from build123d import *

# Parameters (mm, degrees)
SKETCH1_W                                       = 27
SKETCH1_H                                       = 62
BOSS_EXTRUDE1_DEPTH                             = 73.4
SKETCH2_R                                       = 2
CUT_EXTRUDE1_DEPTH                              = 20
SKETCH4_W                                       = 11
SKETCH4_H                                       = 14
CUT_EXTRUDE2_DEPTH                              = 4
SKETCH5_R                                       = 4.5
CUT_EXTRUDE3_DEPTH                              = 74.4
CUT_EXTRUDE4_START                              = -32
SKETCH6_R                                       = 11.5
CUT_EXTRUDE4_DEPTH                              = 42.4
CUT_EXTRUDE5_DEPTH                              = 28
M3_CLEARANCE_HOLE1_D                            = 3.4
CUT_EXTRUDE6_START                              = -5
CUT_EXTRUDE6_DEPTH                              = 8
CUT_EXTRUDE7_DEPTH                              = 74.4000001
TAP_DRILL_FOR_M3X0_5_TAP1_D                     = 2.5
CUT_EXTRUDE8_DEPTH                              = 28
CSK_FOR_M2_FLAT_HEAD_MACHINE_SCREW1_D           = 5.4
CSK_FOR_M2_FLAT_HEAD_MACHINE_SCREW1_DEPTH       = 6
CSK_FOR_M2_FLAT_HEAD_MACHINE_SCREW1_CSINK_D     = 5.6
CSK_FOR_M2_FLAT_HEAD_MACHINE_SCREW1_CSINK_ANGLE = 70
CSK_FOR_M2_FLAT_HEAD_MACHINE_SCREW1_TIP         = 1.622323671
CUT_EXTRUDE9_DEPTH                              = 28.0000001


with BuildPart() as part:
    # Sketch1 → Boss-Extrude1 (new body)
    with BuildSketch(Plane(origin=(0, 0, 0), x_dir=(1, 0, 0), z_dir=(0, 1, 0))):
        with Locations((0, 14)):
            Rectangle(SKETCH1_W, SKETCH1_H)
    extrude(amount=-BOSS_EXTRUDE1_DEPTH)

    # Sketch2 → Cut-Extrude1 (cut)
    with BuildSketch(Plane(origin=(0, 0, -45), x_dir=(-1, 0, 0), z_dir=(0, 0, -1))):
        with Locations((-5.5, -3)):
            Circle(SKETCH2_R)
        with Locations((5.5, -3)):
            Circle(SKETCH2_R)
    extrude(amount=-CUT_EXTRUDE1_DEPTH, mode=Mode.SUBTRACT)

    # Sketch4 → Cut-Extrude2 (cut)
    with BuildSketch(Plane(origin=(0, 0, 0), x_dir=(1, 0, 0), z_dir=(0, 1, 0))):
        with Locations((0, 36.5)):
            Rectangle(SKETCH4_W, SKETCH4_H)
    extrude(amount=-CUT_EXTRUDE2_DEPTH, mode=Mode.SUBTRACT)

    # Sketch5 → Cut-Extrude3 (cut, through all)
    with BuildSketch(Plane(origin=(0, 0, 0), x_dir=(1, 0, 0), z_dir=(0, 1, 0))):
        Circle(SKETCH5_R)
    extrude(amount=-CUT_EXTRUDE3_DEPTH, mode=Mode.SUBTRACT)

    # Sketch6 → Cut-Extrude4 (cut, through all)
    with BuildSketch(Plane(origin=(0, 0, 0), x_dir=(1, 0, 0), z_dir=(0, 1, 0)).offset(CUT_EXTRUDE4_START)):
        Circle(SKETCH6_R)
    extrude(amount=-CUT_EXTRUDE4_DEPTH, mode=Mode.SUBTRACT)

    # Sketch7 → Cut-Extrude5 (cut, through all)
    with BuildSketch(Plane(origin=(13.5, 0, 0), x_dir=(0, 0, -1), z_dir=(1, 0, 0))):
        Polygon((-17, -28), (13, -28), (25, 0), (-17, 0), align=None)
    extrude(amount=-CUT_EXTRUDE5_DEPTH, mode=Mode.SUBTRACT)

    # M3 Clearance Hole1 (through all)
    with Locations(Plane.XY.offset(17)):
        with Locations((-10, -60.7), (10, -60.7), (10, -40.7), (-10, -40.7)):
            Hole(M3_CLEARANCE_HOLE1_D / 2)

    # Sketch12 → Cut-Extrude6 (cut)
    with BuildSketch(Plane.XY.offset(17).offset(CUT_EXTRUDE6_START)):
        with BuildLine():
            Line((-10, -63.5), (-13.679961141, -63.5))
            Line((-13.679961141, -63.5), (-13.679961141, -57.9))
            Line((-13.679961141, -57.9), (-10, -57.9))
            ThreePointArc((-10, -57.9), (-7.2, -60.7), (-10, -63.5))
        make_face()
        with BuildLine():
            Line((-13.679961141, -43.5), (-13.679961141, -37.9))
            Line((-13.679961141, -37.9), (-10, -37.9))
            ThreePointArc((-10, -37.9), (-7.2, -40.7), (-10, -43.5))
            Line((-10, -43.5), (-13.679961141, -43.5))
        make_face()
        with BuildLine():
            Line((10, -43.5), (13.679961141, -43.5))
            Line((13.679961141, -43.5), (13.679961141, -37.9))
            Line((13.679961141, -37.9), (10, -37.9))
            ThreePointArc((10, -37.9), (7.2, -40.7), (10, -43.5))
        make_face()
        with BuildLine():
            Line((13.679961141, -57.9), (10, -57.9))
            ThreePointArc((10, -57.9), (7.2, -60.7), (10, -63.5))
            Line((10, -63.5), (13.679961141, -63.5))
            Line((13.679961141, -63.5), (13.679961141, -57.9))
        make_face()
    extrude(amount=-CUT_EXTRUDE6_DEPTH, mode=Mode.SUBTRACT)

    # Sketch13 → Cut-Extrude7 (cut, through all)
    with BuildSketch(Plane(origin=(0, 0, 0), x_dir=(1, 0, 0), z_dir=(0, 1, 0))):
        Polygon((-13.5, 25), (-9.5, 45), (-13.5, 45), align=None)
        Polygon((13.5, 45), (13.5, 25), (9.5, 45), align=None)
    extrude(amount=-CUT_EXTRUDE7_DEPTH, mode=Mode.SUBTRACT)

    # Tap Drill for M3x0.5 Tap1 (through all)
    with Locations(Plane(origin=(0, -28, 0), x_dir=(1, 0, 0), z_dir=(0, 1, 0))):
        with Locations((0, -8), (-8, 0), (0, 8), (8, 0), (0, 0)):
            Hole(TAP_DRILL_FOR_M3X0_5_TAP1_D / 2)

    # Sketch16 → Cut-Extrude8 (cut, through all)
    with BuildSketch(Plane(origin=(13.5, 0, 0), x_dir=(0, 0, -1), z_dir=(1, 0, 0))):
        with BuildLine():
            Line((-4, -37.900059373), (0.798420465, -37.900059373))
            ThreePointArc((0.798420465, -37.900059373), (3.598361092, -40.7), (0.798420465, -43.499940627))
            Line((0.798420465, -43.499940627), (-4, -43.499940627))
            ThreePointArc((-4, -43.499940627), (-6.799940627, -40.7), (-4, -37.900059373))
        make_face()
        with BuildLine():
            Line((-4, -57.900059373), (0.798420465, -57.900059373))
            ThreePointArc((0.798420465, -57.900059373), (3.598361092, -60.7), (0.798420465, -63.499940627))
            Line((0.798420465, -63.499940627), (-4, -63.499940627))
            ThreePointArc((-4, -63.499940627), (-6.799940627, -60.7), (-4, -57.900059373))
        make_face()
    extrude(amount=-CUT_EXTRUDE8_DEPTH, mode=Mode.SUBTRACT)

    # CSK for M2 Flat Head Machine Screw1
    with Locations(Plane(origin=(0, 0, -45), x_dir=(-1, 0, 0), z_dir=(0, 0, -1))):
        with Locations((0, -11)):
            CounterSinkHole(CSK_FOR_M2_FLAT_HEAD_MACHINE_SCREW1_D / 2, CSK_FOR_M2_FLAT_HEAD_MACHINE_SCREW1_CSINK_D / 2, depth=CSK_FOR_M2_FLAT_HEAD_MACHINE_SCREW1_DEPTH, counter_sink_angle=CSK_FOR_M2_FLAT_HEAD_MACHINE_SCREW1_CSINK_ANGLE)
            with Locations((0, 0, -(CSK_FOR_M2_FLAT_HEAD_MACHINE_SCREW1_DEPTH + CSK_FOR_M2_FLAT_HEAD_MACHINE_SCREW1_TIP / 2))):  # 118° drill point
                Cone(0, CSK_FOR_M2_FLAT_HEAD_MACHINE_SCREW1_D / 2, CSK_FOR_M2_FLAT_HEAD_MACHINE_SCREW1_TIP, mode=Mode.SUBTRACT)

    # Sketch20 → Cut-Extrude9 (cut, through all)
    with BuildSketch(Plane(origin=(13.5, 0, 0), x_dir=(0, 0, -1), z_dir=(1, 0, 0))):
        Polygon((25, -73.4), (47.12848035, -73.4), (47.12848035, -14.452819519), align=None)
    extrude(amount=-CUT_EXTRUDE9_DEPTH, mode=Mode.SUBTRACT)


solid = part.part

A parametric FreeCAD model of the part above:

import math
import FreeCAD as App
import Part
import Sketcher
from FreeCAD import Vector
Q = App.Units.Quantity

doc = App.newDocument("Part")
params = doc.addObject("Spreadsheet::Sheet", "Params")
for row, (alias, value) in enumerate([
    ("sketch1_width", "27 mm"),
    ("sketch1_height", "62 mm"),
    ("pad1_length", "73.4 mm"),
    ("sketch2_diameter", "4 mm"),
    ("pocket1_length", "20 mm"),
    ("sketch3_width", "11 mm"),
    ("sketch3_height", "14 mm"),
    ("pocket2_length", "4 mm"),
    ("sketch4_diameter", "9 mm"),
    ("sketch5_diameter", "23 mm"),
    ("sketch6_width", "28 mm"),
    ("sketch6_height", "30 mm"),
    ("sketch6_height2", "42 mm"),
    ("sketch7_diameter", "3.4 mm"),
    ("hole_diameter", "3.4 mm"),
    ("sketch8_radius", "2.8 mm"),
    ("pocket6_length", "8 mm"),
    ("sketch9_width", "4 mm"),
    ("sketch9_height", "20 mm"),
    ("sketch10_diameter", "2.5 mm"),
    ("hole2_diameter", "2.5 mm"),
    ("sketch12_diameter", "5.4 mm"),
    ("hole3_diameter", "5.4 mm"),
    ("hole3_depth", "6 mm"),
    ("hole3_csink_diameter", "5.6 mm"),
], start=1):
    params.set(f"A{row}", alias)
    params.set(f"B{row}", "=" + value)
    params.setAlias(f"B{row}", alias)

body = doc.addObject("PartDesign::Body", "Body")

# Sketch on XZ plane
sketch1 = body.newObject("Sketcher::SketchObject", "Sketch")
sketch1.AttachmentSupport = (doc.getObject("XZ_Plane"), [""])
sketch1.MapMode = "FlatFace"
sketch1.addGeometry([
    Part.LineSegment(Vector(-14, -45, 0), Vector(-14, 17, 0)),
    Part.LineSegment(Vector(-14, 17, 0), Vector(14, 17, 0)),
    Part.LineSegment(Vector(14, 17, 0), Vector(14, -45, 0)),
    Part.LineSegment(Vector(14, -45, 0), Vector(-14, -45, 0)),
], False)
sketch1.addConstraint([
    Sketcher.Constraint("Coincident", 0, 2, 1, 1),
    Sketcher.Constraint("Coincident", 1, 2, 2, 1),
    Sketcher.Constraint("Coincident", 2, 2, 3, 1),
    Sketcher.Constraint("Coincident", 3, 2, 0, 1),
    Sketcher.Constraint("Vertical", 0),
    Sketcher.Constraint("Horizontal", 1),
    Sketcher.Constraint("Vertical", 2),
    Sketcher.Constraint("Horizontal", 3),
    Sketcher.Constraint("DistanceX", 1, 1, 1, 2, Q("27 mm")),
    Sketcher.Constraint("DistanceY", 0, 1, 0, 2, Q("62 mm")),
    Sketcher.Constraint("DistanceY", -1, 1, 0, 2, Q("17 mm")),
    Sketcher.Constraint("DistanceX", 0, 2, -1, 1, Q("13.5 mm")),
])
sketch1.setExpression("Constraints[8]", "Params.sketch1_width")
sketch1.setExpression("Constraints[9]", "Params.sketch1_height")
pad1 = body.newObject("PartDesign::Pad", "Pad")
pad1.Profile = sketch1
pad1.setExpression("Length", "Params.pad1_length")

# Sketch on XY plane
sketch2 = body.newObject("Sketcher::SketchObject", "Sketch001")
sketch2.AttachmentSupport = (doc.getObject("XY_Plane"), [""])
sketch2.MapMode = "FlatFace"
sketch2.AttachmentOffset = App.Placement(Vector(0, 0, -45), App.Rotation())
sketch2.addGeometry([
    Part.Circle(Vector(5.5, -3, 0), Vector(0, 0, 1), 2),
    Part.Circle(Vector(-5.5, -3, 0), Vector(0, 0, 1), 2),
], False)
sketch2.addConstraint([
    Sketcher.Constraint("Equal", 0, 1),
    Sketcher.Constraint("Symmetric", 0, 3, 1, 3, -2),
    Sketcher.Constraint("Diameter", 0, Q("4 mm")),
    Sketcher.Constraint("DistanceY", 0, 3, -1, 1, Q("3 mm")),
    Sketcher.Constraint("DistanceX", 1, 3, 0, 3, Q("11 mm")),
])
sketch2.setExpression("Constraints[2]", "Params.sketch2_diameter")
pocket1 = body.newObject("PartDesign::Pocket", "Pocket")
pocket1.Profile = sketch2
pocket1.setExpression("Length", "Params.pocket1_length")
pocket1.Reversed = True

# Sketch on XZ plane
sketch3 = body.newObject("Sketcher::SketchObject", "Sketch002")
sketch3.AttachmentSupport = (doc.getObject("XZ_Plane"), [""])
sketch3.MapMode = "FlatFace"
sketch3.addGeometry([
    Part.LineSegment(Vector(-6, -44, 0), Vector(-6, -30, 0)),
    Part.LineSegment(Vector(-6, -30, 0), Vector(6, -30, 0)),
    Part.LineSegment(Vector(6, -30, 0), Vector(6, -44, 0)),
    Part.LineSegment(Vector(6, -44, 0), Vector(-6, -44, 0)),
], False)
sketch3.addConstraint([
    Sketcher.Constraint("Coincident", 0, 2, 1, 1),
    Sketcher.Constraint("Coincident", 1, 2, 2, 1),
    Sketcher.Constraint("Coincident", 2, 2, 3, 1),
    Sketcher.Constraint("Coincident", 3, 2, 0, 1),
    Sketcher.Constraint("Vertical", 0),
    Sketcher.Constraint("Horizontal", 1),
    Sketcher.Constraint("Vertical", 2),
    Sketcher.Constraint("Horizontal", 3),
    Sketcher.Constraint("DistanceX", 1, 1, 1, 2, Q("11 mm")),
    Sketcher.Constraint("DistanceY", 0, 1, 0, 2, Q("14 mm")),
    Sketcher.Constraint("DistanceX", 0, 2, -1, 1, Q("5.5 mm")),
    Sketcher.Constraint("DistanceY", 0, 2, -1, 1, Q("29.5 mm")),
])
sketch3.setExpression("Constraints[8]", "Params.sketch3_width")
sketch3.setExpression("Constraints[9]", "Params.sketch3_height")
pocket2 = body.newObject("PartDesign::Pocket", "Pocket001")
pocket2.Profile = sketch3
pocket2.setExpression("Length", "Params.pocket2_length")
pocket2.Reversed = True

# Sketch on XZ plane
sketch4 = body.newObject("Sketcher::SketchObject", "Sketch003")
sketch4.AttachmentSupport = (doc.getObject("XZ_Plane"), [""])
sketch4.MapMode = "FlatFace"
sketch4.addGeometry(Part.Circle(Vector(0, 0, 0), Vector(0, 0, 1), 4.5), False)
sketch4.addConstraint([
    Sketcher.Constraint("Coincident", 0, 3, -1, 1),
    Sketcher.Constraint("Diameter", 0, Q("9 mm")),
])
sketch4.setExpression("Constraints[1]", "Params.sketch4_diameter")
pocket3 = body.newObject("PartDesign::Pocket", "Pocket002")
pocket3.Profile = sketch4
pocket3.Type = "ThroughAll"
pocket3.Reversed = True

# Sketch on XZ plane
sketch5 = body.newObject("Sketcher::SketchObject", "Sketch004")
sketch5.AttachmentSupport = (doc.getObject("XZ_Plane"), [""])
sketch5.MapMode = "FlatFace"
sketch5.AttachmentOffset = App.Placement(Vector(0, 0, 32), App.Rotation())
sketch5.addGeometry(Part.Circle(Vector(0, 0, 0), Vector(0, 0, 1), 12), False)
sketch5.addConstraint([
    Sketcher.Constraint("Coincident", 0, 3, -1, 1),
    Sketcher.Constraint("Diameter", 0, Q("23 mm")),
])
sketch5.setExpression("Constraints[1]", "Params.sketch5_diameter")
pocket4 = body.newObject("PartDesign::Pocket", "Pocket003")
pocket4.Profile = sketch5
pocket4.Type = "ThroughAll"
pocket4.Reversed = True

# Sketch on YZ plane
sketch6 = body.newObject("Sketcher::SketchObject", "Sketch005")
sketch6.AttachmentSupport = (doc.getObject("YZ_Plane"), [""])
sketch6.MapMode = "FlatFace"
sketch6.AttachmentOffset = App.Placement(Vector(0, 0, 13.5), App.Rotation())
sketch6.addGeometry([
    Part.LineSegment(Vector(-28, 17, 0), Vector(-28, -13, 0)),
    Part.LineSegment(Vector(-28, -13, 0), Vector(0, -25, 0)),
    Part.LineSegment(Vector(0, -25, 0), Vector(0, 17, 0)),
    Part.LineSegment(Vector(0, 17, 0), Vector(-28, 17, 0)),
], False)
sketch6.addConstraint([
    Sketcher.Constraint("Coincident", 0, 2, 1, 1),
    Sketcher.Constraint("Coincident", 1, 2, 2, 1),
    Sketcher.Constraint("Coincident", 2, 2, 3, 1),
    Sketcher.Constraint("Coincident", 3, 2, 0, 1),
    Sketcher.Constraint("Vertical", 0),
    Sketcher.Constraint("Vertical", 2),
    Sketcher.Constraint("Horizontal", 3),
    Sketcher.Constraint("PointOnObject", 1, 2, -2),
    Sketcher.Constraint("DistanceX", 3, 2, 3, 1, Q("28 mm")),
    Sketcher.Constraint("DistanceY", 0, 2, 0, 1, Q("30 mm")),
    Sketcher.Constraint("DistanceY", 2, 1, 2, 2, Q("42 mm")),
    Sketcher.Constraint("DistanceY", 0, 2, -1, 1, Q("13 mm")),
])
sketch6.setExpression("Constraints[8]", "Params.sketch6_width")
sketch6.setExpression("Constraints[9]", "Params.sketch6_height")
sketch6.setExpression("Constraints[10]", "Params.sketch6_height2")
pocket5 = body.newObject("PartDesign::Pocket", "Pocket004")
pocket5.Profile = sketch6
pocket5.Type = "ThroughAll"

# Sketch on XY plane
sketch7 = body.newObject("Sketcher::SketchObject", "Sketch006")
sketch7.AttachmentSupport = (doc.getObject("XY_Plane"), [""])
sketch7.MapMode = "FlatFace"
sketch7.AttachmentOffset = App.Placement(Vector(0, 0, 17), App.Rotation())
sketch7.addGeometry([
    Part.Circle(Vector(-10, -60.7, 0), Vector(0, 0, 1), 1.7),
    Part.Circle(Vector(10, -60.7, 0), Vector(0, 0, 1), 1.7),
    Part.Circle(Vector(10, -40.7, 0), Vector(0, 0, 1), 1.7),
    Part.Circle(Vector(-10, -40.7, 0), Vector(0, 0, 1), 1.7),
], False)
sketch7.addConstraint([
    Sketcher.Constraint("Equal", 0, 1),
    Sketcher.Constraint("Equal", 1, 2),
    Sketcher.Constraint("Equal", 2, 3),
    Sketcher.Constraint("Symmetric", 0, 3, 1, 3, -2),
    Sketcher.Constraint("Symmetric", 2, 3, 3, 3, -2),
    Sketcher.Constraint("Vertical", 1, 3, 2, 3),
    Sketcher.Constraint("Diameter", 0, Q("3.4 mm")),
    Sketcher.Constraint("DistanceX", 0, 3, -1, 1, Q("10 mm")),
    Sketcher.Constraint("DistanceY", 1, 3, 2, 3, Q("20 mm")),
    Sketcher.Constraint("DistanceY", 0, 3, -1, 1, Q("60.7 mm")),
])
sketch7.setExpression("Constraints[6]", "Params.sketch7_diameter")
doc.recompute()
hole = body.newObject("PartDesign::Hole", "Hole")
hole.Profile = sketch7
hole.ThreadType = "None"
hole.setExpression("Diameter", "Params.hole_diameter")
hole.DepthType = "ThroughAll"

# Sketch on XY plane
sketch8 = body.newObject("Sketcher::SketchObject", "Sketch007")
sketch8.AttachmentSupport = (doc.getObject("XY_Plane"), [""])
sketch8.MapMode = "FlatFace"
sketch8.AttachmentOffset = App.Placement(Vector(0, 0, 12), App.Rotation())
sketch8.addGeometry([
    Part.LineSegment(Vector(-13.7, -63.5, 0), Vector(-10, -63.5, 0)),  # 0
    Part.ArcOfCircle(Part.Circle(Vector(-10, -60.7, 0), Vector(0, 0, 1), 2.8), math.radians(-90), math.radians(90)),  # 1
    Part.LineSegment(Vector(-10, -57.9, 0), Vector(-13.7, -57.9, 0)),  # 2
    Part.LineSegment(Vector(-13.7, -57.9, 0), Vector(-13.7, -63.5, 0)),  # 3
    Part.LineSegment(Vector(-13.7, -37.9, 0), Vector(-13.7, -43.5, 0)),  # 4
    Part.LineSegment(Vector(-13.7, -43.5, 0), Vector(-10, -43.5, 0)),  # 5
    Part.ArcOfCircle(Part.Circle(Vector(-10, -40.7, 0), Vector(0, 0, 1), 2.8), math.radians(-90), math.radians(90)),  # 6
    Part.LineSegment(Vector(-10, -37.9, 0), Vector(-13.7, -37.9, 0)),  # 7
    Part.LineSegment(Vector(10, -43.5, 0), Vector(13.7, -43.5, 0)),  # 8
    Part.LineSegment(Vector(13.7, -43.5, 0), Vector(13.7, -37.9, 0)),  # 9
    Part.LineSegment(Vector(13.7, -37.9, 0), Vector(10, -37.9, 0)),  # 10
    Part.ArcOfCircle(Part.Circle(Vector(10, -40.7, 0), Vector(0, 0, 1), 2.8), math.radians(90), math.radians(270)),  # 11
    Part.LineSegment(Vector(13.7, -57.9, 0), Vector(10, -57.9, 0)),  # 12
    Part.ArcOfCircle(Part.Circle(Vector(10, -60.7, 0), Vector(0, 0, 1), 2.8), math.radians(90), math.radians(270)),  # 13
    Part.LineSegment(Vector(10, -63.5, 0), Vector(13.7, -63.5, 0)),  # 14
    Part.LineSegment(Vector(13.7, -63.5, 0), Vector(13.7, -57.9, 0)),  # 15
], False)
sketch8.addConstraint([
    Sketcher.Constraint("Tangent", 0, 2, 1, 1),
    Sketcher.Constraint("Tangent", 1, 2, 2, 1),
    Sketcher.Constraint("Coincident", 2, 2, 3, 1),
    Sketcher.Constraint("Coincident", 3, 2, 0, 1),
    Sketcher.Constraint("Coincident", 4, 2, 5, 1),
    Sketcher.Constraint("Tangent", 5, 2, 6, 1),
    Sketcher.Constraint("Tangent", 6, 2, 7, 1),
    Sketcher.Constraint("Coincident", 7, 2, 4, 1),
    Sketcher.Constraint("Coincident", 8, 2, 9, 1),
    Sketcher.Constraint("Coincident", 9, 2, 10, 1),
    Sketcher.Constraint("Tangent", 10, 2, 11, 1),
    Sketcher.Constraint("Tangent", 11, 2, 8, 1),
    Sketcher.Constraint("Tangent", 12, 2, 13, 1),
    Sketcher.Constraint("Tangent", 13, 2, 14, 1),
    Sketcher.Constraint("Coincident", 14, 2, 15, 1),
    Sketcher.Constraint("Coincident", 15, 2, 12, 1),
    Sketcher.Constraint("Horizontal", 0),
    Sketcher.Constraint("Horizontal", 2),
    Sketcher.Constraint("Vertical", 3),
    Sketcher.Constraint("Vertical", 4),
    Sketcher.Constraint("Horizontal", 5),
    Sketcher.Constraint("Horizontal", 7),
    Sketcher.Constraint("Horizontal", 8),
    Sketcher.Constraint("Vertical", 9),
    Sketcher.Constraint("Horizontal", 10),
    Sketcher.Constraint("Horizontal", 12),
    Sketcher.Constraint("Horizontal", 14),
    Sketcher.Constraint("Vertical", 15),
    Sketcher.Constraint("Equal", 1, 6),
    Sketcher.Constraint("Equal", 6, 11),
    Sketcher.Constraint("Equal", 11, 13),
    Sketcher.Constraint("Symmetric", 6, 3, 11, 3, -2),
    Sketcher.Constraint("Symmetric", 1, 3, 13, 3, -2),
    Sketcher.Constraint("Vertical", 1, 3, 6, 3),
    Sketcher.Constraint("Vertical", 3, 2, 4, 2),
    Sketcher.Constraint("Vertical", 9, 2, 14, 2),
    Sketcher.Constraint("Equal", 7, 8),
    Sketcher.Constraint("Radius", 1, Q("2.8 mm")),
    Sketcher.Constraint("DistanceX", 1, 3, -1, 1, Q("10 mm")),
    Sketcher.Constraint("DistanceY", 1, 3, 6, 3, Q("20 mm")),
    Sketcher.Constraint("DistanceY", 1, 3, -1, 1, Q("60.7 mm")),
    Sketcher.Constraint("DistanceX", 0, 1, 0, 2, Q("3.679961 mm")),
])
sketch8.setExpression("Constraints[37]", "Params.sketch8_radius")
pocket6 = body.newObject("PartDesign::Pocket", "Pocket005")
pocket6.Profile = sketch8
pocket6.setExpression("Length", "Params.pocket6_length")

# Sketch on XZ plane
sketch9 = body.newObject("Sketcher::SketchObject", "Sketch008")
sketch9.AttachmentSupport = (doc.getObject("XZ_Plane"), [""])
sketch9.MapMode = "FlatFace"
sketch9.addGeometry([
    Part.LineSegment(Vector(-13.5, -25, 0), Vector(-9.5, -45, 0)),  # 0
    Part.LineSegment(Vector(-9.5, -45, 0), Vector(-13.5, -45, 0)),  # 1
    Part.LineSegment(Vector(-13.5, -45, 0), Vector(-13.5, -25, 0)),  # 2
    Part.LineSegment(Vector(13.5, -25, 0), Vector(13.5, -45, 0)),  # 3
    Part.LineSegment(Vector(13.5, -45, 0), Vector(9.5, -45, 0)),  # 4
    Part.LineSegment(Vector(9.5, -45, 0), Vector(13.5, -25, 0)),  # 5
], False)
sketch9.addConstraint([
    Sketcher.Constraint("Coincident", 0, 2, 1, 1),
    Sketcher.Constraint("Coincident", 1, 2, 2, 1),
    Sketcher.Constraint("Coincident", 2, 2, 0, 1),
    Sketcher.Constraint("Coincident", 3, 2, 4, 1),
    Sketcher.Constraint("Coincident", 4, 2, 5, 1),
    Sketcher.Constraint("Coincident", 5, 2, 3, 1),
    Sketcher.Constraint("Horizontal", 1),
    Sketcher.Constraint("Vertical", 2),
    Sketcher.Constraint("Vertical", 3),
    Sketcher.Constraint("Horizontal", 4),
    Sketcher.Constraint("Symmetric", 1, 2, 3, 2, -2),
    Sketcher.Constraint("Horizontal", 2, 2, 5, 2),
    Sketcher.Constraint("Equal", 1, 4),
    Sketcher.Constraint("DistanceX", 1, 2, 1, 1, Q("4 mm")),
    Sketcher.Constraint("DistanceY", 2, 1, 2, 2, Q("20 mm")),
    Sketcher.Constraint("DistanceY", 0, 2, -1, 1, Q("45 mm")),
    Sketcher.Constraint("DistanceX", 0, 2, 3, 2, Q("23 mm")),
])
sketch9.setExpression("Constraints[13]", "Params.sketch9_width")
sketch9.setExpression("Constraints[14]", "Params.sketch9_height")
pocket7 = body.newObject("PartDesign::Pocket", "Pocket006")
pocket7.Profile = sketch9
pocket7.Type = "ThroughAll"
pocket7.Reversed = True

# Sketch on XZ plane
sketch10 = body.newObject("Sketcher::SketchObject", "Sketch009")
sketch10.AttachmentSupport = (doc.getObject("XZ_Plane"), [""])
sketch10.MapMode = "FlatFace"
sketch10.AttachmentOffset = App.Placement(Vector(0, 0, 28), App.Rotation())
sketch10.addGeometry([
    Part.Circle(Vector(0, 8, 0), Vector(0, 0, 1), 1.2),  # 0
    Part.Circle(Vector(-8, 0, 0), Vector(0, 0, 1), 1.2),  # 1
    Part.Circle(Vector(0, -8, 0), Vector(0, 0, 1), 1.2),  # 2
    Part.Circle(Vector(8, 0, 0), Vector(0, 0, 1), 1.2),  # 3
    Part.Circle(Vector(0, 0, 0), Vector(0, 0, 1), 1.2),  # 4
], False)
sketch10.addConstraint([
    Sketcher.Constraint("Coincident", 4, 3, -1, 1),
    Sketcher.Constraint("Equal", 0, 1),
    Sketcher.Constraint("Equal", 1, 2),
    Sketcher.Constraint("Equal", 2, 3),
    Sketcher.Constraint("Equal", 3, 4),
    Sketcher.Constraint("Symmetric", 0, 3, 2, 3, -1, 1),
    Sketcher.Constraint("Symmetric", 1, 3, 3, 3, -1, 1),
    Sketcher.Constraint("PointOnObject", 0, 3, -2),
    Sketcher.Constraint("PointOnObject", 1, 3, -1),
    Sketcher.Constraint("Diameter", 0, Q("2.5 mm")),
    Sketcher.Constraint("DistanceY", -1, 1, 0, 3, Q("8 mm")),
    Sketcher.Constraint("DistanceX", 1, 3, -1, 1, Q("8 mm")),
])
sketch10.setExpression("Constraints[9]", "Params.sketch10_diameter")
doc.recompute()
hole2 = body.newObject("PartDesign::Hole", "Hole001")
hole2.Profile = sketch10
hole2.ThreadType = "None"
hole2.setExpression("Diameter", "Params.hole2_diameter")
hole2.DepthType = "ThroughAll"
hole2.Reversed = True

# Sketch on YZ plane
sketch11 = body.newObject("Sketcher::SketchObject", "Sketch010")
sketch11.AttachmentSupport = (doc.getObject("YZ_Plane"), [""])
sketch11.MapMode = "FlatFace"
sketch11.AttachmentOffset = App.Placement(Vector(0, 0, 13.5), App.Rotation())
sketch11.addGeometry([
    Part.LineSegment(Vector(-37.9, -0.8, 0), Vector(-37.9, 4, 0)),  # 0
    Part.ArcOfCircle(Part.Circle(Vector(-40.7, 4, 0), Vector(0, 0, 1), 2.8), math.radians(0), math.radians(180)),  # 1
    Part.LineSegment(Vector(-43.5, 4, 0), Vector(-43.5, -0.8, 0)),  # 2
    Part.ArcOfCircle(Part.Circle(Vector(-40.7, -0.8, 0), Vector(0, 0, 1), 2.8), math.radians(180), math.radians(360)),  # 3
    Part.LineSegment(Vector(-57.9, -0.8, 0), Vector(-57.9, 4, 0)),  # 4
    Part.ArcOfCircle(Part.Circle(Vector(-60.7, 4, 0), Vector(0, 0, 1), 2.8), math.radians(0), math.radians(180)),  # 5
    Part.LineSegment(Vector(-63.5, 4, 0), Vector(-63.5, -0.8, 0)),  # 6
    Part.ArcOfCircle(Part.Circle(Vector(-60.7, -0.8, 0), Vector(0, 0, 1), 2.8), math.radians(180), math.radians(360)),  # 7
], False)
sketch11.addConstraint([
    Sketcher.Constraint("Tangent", 0, 2, 1, 1),
    Sketcher.Constraint("Tangent", 1, 2, 2, 1),
    Sketcher.Constraint("Tangent", 2, 2, 3, 1),
    Sketcher.Constraint("Tangent", 3, 2, 0, 1),
    Sketcher.Constraint("Tangent", 4, 2, 5, 1),
    Sketcher.Constraint("Tangent", 5, 2, 6, 1),
    Sketcher.Constraint("Tangent", 6, 2, 7, 1),
    Sketcher.Constraint("Tangent", 7, 2, 4, 1),
    Sketcher.Constraint("Vertical", 0),
    Sketcher.Constraint("Vertical", 2),
    Sketcher.Constraint("Vertical", 4),
    Sketcher.Constraint("Vertical", 6),
    Sketcher.Constraint("Equal", 3, 5),
    Sketcher.Constraint("Horizontal", 1, 3, 5, 3),
    Sketcher.Constraint("Horizontal", 3, 3, 7, 3),
    Sketcher.Constraint("DistanceY", -1, 1, 1, 3, Q("4 mm")),
    Sketcher.Constraint("DistanceX", 5, 3, 1, 3, Q("20 mm")),
    Sketcher.Constraint("DistanceX", 1, 3, -1, 1, Q("40.7 mm")),
    Sketcher.Constraint("Radius", 1, Q("2.799941 mm")),
    Sketcher.Constraint("DistanceY", 0, 1, 0, 2, Q("4.79842 mm")),
])
pocket8 = body.newObject("PartDesign::Pocket", "Pocket007")
pocket8.Profile = sketch11
pocket8.Type = "ThroughAll"

# Sketch on XY plane
sketch12 = body.newObject("Sketcher::SketchObject", "Sketch011")
sketch12.AttachmentSupport = (doc.getObject("XY_Plane"), [""])
sketch12.MapMode = "FlatFace"
sketch12.AttachmentOffset = App.Placement(Vector(0, 0, -45), App.Rotation())
sketch12.addGeometry(Part.Circle(Vector(0, -11, 0), Vector(0, 0, 1), 2.7), False)
sketch12.addConstraint([
    Sketcher.Constraint("PointOnObject", 0, 3, -2),
    Sketcher.Constraint("Diameter", 0, Q("5.4 mm")),
    Sketcher.Constraint("DistanceY", 0, 3, -1, 1, Q("11 mm")),
])
sketch12.setExpression("Constraints[1]", "Params.sketch12_diameter")
doc.recompute()
hole3 = body.newObject("PartDesign::Hole", "Hole002")
hole3.Profile = sketch12
hole3.ThreadType = "None"
hole3.setExpression("Diameter", "Params.hole3_diameter")
hole3.DepthType = "Dimension"
hole3.setExpression("Depth", "Params.hole3_depth")
hole3.DrillPoint = "Angled"
hole3.DrillPointAngle = 118
hole3.HoleCutType = "Countersink"
hole3.setExpression("HoleCutDiameter", "Params.hole3_csink_diameter")
hole3.HoleCutCountersinkAngle = 70
hole3.Reversed = True

# Sketch on YZ plane
sketch13 = body.newObject("Sketcher::SketchObject", "Sketch012")
sketch13.AttachmentSupport = (doc.getObject("YZ_Plane"), [""])
sketch13.MapMode = "FlatFace"
sketch13.AttachmentOffset = App.Placement(Vector(0, 0, 13.5), App.Rotation())
sketch13.addGeometry([
    Part.LineSegment(Vector(-73, -25, 0), Vector(-73, -47, 0)),
    Part.LineSegment(Vector(-73, -47, 0), Vector(-14, -47, 0)),
    Part.LineSegment(Vector(-14, -47, 0), Vector(-73, -25, 0)),
], False)
sketch13.addConstraint([
    Sketcher.Constraint("Coincident", 0, 2, 1, 1),
    Sketcher.Constraint("Coincident", 1, 2, 2, 1),
    Sketcher.Constraint("Coincident", 2, 2, 0, 1),
    Sketcher.Constraint("Vertical", 0),
    Sketcher.Constraint("Horizontal", 1),
    Sketcher.Constraint("DistanceY", 2, 2, -1, 1, Q("25 mm")),
    Sketcher.Constraint("DistanceX", 0, 2, -1, 1, Q("73.4 mm")),
    Sketcher.Constraint("DistanceX", 1, 1, 1, 2, Q("58.94718 mm")),
    Sketcher.Constraint("DistanceY", 0, 2, 0, 1, Q("22.12848 mm")),
])
pocket9 = body.newObject("PartDesign::Pocket", "Pocket008")
pocket9.Profile = sketch13
pocket9.Type = "ThroughAll"

doc.recompute()
